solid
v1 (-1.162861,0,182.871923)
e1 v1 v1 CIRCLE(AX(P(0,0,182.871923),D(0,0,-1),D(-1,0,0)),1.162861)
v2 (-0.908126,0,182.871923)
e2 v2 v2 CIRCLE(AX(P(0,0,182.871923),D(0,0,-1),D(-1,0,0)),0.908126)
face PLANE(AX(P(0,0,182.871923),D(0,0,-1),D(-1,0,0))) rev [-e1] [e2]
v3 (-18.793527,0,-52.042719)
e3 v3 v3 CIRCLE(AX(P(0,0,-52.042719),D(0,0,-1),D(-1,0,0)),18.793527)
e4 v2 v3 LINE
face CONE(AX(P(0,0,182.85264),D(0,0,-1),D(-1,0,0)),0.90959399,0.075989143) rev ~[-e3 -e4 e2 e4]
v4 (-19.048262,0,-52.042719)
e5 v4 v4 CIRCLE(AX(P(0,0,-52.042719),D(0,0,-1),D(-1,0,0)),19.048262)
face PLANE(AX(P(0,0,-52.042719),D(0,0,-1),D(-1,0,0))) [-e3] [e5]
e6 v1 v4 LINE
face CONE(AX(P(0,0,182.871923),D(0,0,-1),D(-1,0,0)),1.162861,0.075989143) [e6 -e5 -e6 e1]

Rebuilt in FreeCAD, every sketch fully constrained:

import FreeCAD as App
import Part
import Sketcher

V = App.Vector
Q = App.Units.Quantity


def faces_at(feature, points):
    """Names of the faces that lie closest to the given points."""
    faces = feature.Shape.Faces
    near = lambda p: min(range(len(faces)), key=lambda i: faces[i].distToShape(Part.Vertex(*p))[0])
    return sorted({f"Face{near(p) + 1}" for p in points})


def add_polygon(sketch, points):
    """Adds a closed chain of lines whose ends are joined by coincident constraints."""
    first, n = sketch.GeometryCount, len(points)
    for a, b in zip(points, points[1:] + points[:1]):
        sketch.addGeometry(Part.LineSegment(App.Vector(*a, 0), App.Vector(*b, 0)), False)
    for i in range(n):
        sketch.addConstraint(Sketcher.Constraint("Coincident", first + i, 2, first + (i + 1) % n, 1))

doc = App.newDocument("Part")
body = doc.addObject("PartDesign::Body", "Body")

sketch1 = doc.addObject("Sketcher::SketchObject", "Sketch")
body.addObject(sketch1)
sketch1.AttachmentSupport = (doc.XZ_Plane, [""])
sketch1.MapMode = "FlatFace"
add_polygon(sketch1, [(-19, -52), (0, -52), (0, 182.9), (-1.2, 182.9)])
sketch1.addConstraint([
    Sketcher.Constraint("Horizontal", 0),
    Sketcher.Constraint("Vertical", 1),
    Sketcher.Constraint("Horizontal", 2),
    Sketcher.Constraint("PointOnObject", 0, 2, -2),
    Sketcher.Constraint("DistanceX", 2, 2, 2, 1, Q("1.162861 mm")),
    Sketcher.Constraint("DistanceX", 3, 2, 2, 2, Q("17.885401 mm")),
    Sketcher.Constraint("DistanceY", 1, 1, 1, 2, Q("234.914642 mm")),
    Sketcher.Constraint("DistanceY", 0, 2, -1, 1, Q("52.042719 mm")),
])
revolution = doc.addObject("PartDesign::Revolution", "Revolution")
body.addObject(revolution)
revolution.Profile = sketch1
revolution.ReferenceAxis = (sketch1, ["V_Axis"])
revolution.Angle = 360
doc.recompute()

thickness = doc.addObject("PartDesign::Thickness", "Thickness")
body.addObject(thickness)
thickness.Base = (revolution, faces_at(revolution, [(0, 0, -52.043), (0, 0, 182.872)]))
thickness.Value = Q("0.01 in")
thickness.Reversed = True
thickness.Join = "Arc"

doc.recompute()
